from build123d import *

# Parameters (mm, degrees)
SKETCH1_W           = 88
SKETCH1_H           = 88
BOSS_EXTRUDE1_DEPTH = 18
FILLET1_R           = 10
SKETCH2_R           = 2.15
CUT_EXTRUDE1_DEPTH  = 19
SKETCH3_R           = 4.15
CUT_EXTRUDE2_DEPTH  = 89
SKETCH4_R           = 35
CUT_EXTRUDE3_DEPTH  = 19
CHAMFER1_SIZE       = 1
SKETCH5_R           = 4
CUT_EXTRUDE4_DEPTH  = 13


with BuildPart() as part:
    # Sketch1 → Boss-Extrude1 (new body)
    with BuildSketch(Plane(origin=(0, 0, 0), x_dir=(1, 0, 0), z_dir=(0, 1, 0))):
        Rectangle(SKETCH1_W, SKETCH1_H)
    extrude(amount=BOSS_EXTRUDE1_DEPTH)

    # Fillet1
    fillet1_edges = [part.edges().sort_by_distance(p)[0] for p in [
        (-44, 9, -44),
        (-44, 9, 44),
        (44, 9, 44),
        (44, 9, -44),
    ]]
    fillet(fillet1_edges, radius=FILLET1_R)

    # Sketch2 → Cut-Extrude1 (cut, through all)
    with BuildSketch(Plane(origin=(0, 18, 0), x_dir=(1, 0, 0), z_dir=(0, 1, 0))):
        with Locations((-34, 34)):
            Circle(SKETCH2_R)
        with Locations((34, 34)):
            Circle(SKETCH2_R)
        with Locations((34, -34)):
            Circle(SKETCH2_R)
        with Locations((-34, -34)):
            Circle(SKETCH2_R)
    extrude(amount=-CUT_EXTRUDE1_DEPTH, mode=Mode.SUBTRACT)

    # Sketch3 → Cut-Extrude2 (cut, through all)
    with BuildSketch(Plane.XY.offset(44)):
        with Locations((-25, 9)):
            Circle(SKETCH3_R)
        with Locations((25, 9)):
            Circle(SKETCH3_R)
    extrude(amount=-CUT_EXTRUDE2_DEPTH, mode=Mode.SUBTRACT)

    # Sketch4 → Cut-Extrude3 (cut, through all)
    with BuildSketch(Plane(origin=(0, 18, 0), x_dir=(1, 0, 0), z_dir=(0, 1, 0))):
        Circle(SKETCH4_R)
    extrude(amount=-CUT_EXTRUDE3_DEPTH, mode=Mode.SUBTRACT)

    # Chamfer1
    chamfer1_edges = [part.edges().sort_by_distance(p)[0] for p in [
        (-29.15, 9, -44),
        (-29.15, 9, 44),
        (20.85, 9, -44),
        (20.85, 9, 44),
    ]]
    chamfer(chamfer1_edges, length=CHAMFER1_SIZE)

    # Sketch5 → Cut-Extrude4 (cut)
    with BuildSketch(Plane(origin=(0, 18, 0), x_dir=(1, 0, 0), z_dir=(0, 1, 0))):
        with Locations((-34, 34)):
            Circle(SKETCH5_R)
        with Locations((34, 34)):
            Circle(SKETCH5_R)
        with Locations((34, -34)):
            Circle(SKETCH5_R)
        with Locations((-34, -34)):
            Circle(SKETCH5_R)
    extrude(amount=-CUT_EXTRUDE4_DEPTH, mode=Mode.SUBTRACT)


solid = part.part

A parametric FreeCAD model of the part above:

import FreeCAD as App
import Part
import Sketcher

V = App.Vector
Q = App.Units.Quantity


def edges_at(feature, points):
    """Names of the edges that pass closest to the given points."""
    edges = feature.Shape.Edges
    near = lambda p: min(range(len(edges)), key=lambda i: edges[i].distToShape(Part.Vertex(*p))[0])
    return sorted({f"Edge{near(p) + 1}" for p in points})

doc = App.newDocument("Part")
body = doc.addObject("PartDesign::Body", "Body")

# Sketch on XZ plane
sketch1 = doc.addObject("Sketcher::SketchObject", "Sketch")
body.addObject(sketch1)
sketch1.AttachmentSupport = (doc.XZ_Plane, [""])
sketch1.MapMode = "FlatFace"
sketch1.addGeometry([
    Part.LineSegment(V(-44, -44, 0), V(-44, 44, 0)),
    Part.LineSegment(V(-44, 44, 0), V(44, 44, 0)),
    Part.LineSegment(V(44, 44, 0), V(44, -44, 0)),
    Part.LineSegment(V(44, -44, 0), V(-44, -44, 0)),
], False)
sketch1.addConstraint([
    Sketcher.Constraint("Coincident", 0, 2, 1, 1),
    Sketcher.Constraint("Coincident", 1, 2, 2, 1),
    Sketcher.Constraint("Coincident", 2, 2, 3, 1),
    Sketcher.Constraint("Coincident", 3, 2, 0, 1),
    Sketcher.Constraint("Vertical", 0),
    Sketcher.Constraint("Horizontal", 1),
    Sketcher.Constraint("Vertical", 2),
    Sketcher.Constraint("Horizontal", 3),
    Sketcher.Constraint("Symmetric", 0, 2, 2, 2, -1, 1),
    Sketcher.Constraint("Equal", 3, 0),
    Sketcher.Constraint("DistanceX", 1, 1, 1, 2, Q("88 mm")),
])
pad1 = doc.addObject("PartDesign::Pad", "Pad")
body.addObject(pad1)
pad1.Profile = sketch1
pad1.Length = 18
pad1.Reversed = True
doc.recompute()

fillet = doc.addObject("PartDesign::Fillet", "Fillet")
body.addObject(fillet)
fillet.Base = (pad1, edges_at(pad1, [
    (-44, 9, -44),
    (-44, 9, 44),
    (44, 9, 44),
    (44, 9, -44),
]))
fillet.Radius = 10

# Sketch on XZ plane
sketch2 = doc.addObject("Sketcher::SketchObject", "Sketch001")
body.addObject(sketch2)
sketch2.AttachmentSupport = (doc.XZ_Plane, [""])
sketch2.MapMode = "FlatFace"
sketch2.AttachmentOffset = App.Placement(V(0, 0, -18), App.Rotation())
sketch2.addGeometry([
    Part.Circle(V(-34, -34, 0), V(0, 0, 1), 2.15),
    Part.Circle(V(34, -34, 0), V(0, 0, 1), 2.15),
    Part.Circle(V(34, 34, 0), V(0, 0, 1), 2.15),
    Part.Circle(V(-34, 34, 0), V(0, 0, 1), 2.15),
], False)
sketch2.addConstraint([
    Sketcher.Constraint("Equal", 0, 1),
    Sketcher.Constraint("Equal", 1, 2),
    Sketcher.Constraint("Equal", 2, 3),
    Sketcher.Constraint("Symmetric", 0, 3, 2, 3, -1, 1),
    Sketcher.Constraint("Symmetric", 1, 3, 3, 3, -1, 1),
    Sketcher.Constraint("Symmetric", 0, 3, 1, 3, -2),
    Sketcher.Constraint("Diameter", 0, Q("4.3 mm")),
    Sketcher.Constraint("DistanceX", 0, 3, -1, 1, Q("34 mm")),
    Sketcher.Constraint("DistanceY", 0, 3, -1, 1, Q("34 mm")),
])
pocket1 = doc.addObject("PartDesign::Pocket", "Pocket")
body.addObject(pocket1)
pocket1.Profile = sketch2
pocket1.Type = "ThroughAll"
pocket1.Reversed = True

# Sketch on XY plane
sketch3 = doc.addObject("Sketcher::SketchObject", "Sketch002")
body.addObject(sketch3)
sketch3.AttachmentSupport = (doc.XY_Plane, [""])
sketch3.MapMode = "FlatFace"
sketch3.AttachmentOffset = App.Placement(V(0, 0, 44), App.Rotation())
sketch3.addGeometry([
    Part.Circle(V(-25, 9, 0), V(0, 0, 1), 4.15),
    Part.Circle(V(25, 9, 0), V(0, 0, 1), 4.15),
], False)
sketch3.addConstraint([
    Sketcher.Constraint("Equal", 0, 1),
    Sketcher.Constraint("Symmetric", 0, 3, 1, 3, -2),
    Sketcher.Constraint("Diameter", 0, Q("8.3 mm")),
    Sketcher.Constraint("DistanceX", 0, 3, -1, 1, Q("25 mm")),
    Sketcher.Constraint("DistanceY", -1, 1, 0, 3, Q("9 mm")),
])
pocket2 = doc.addObject("PartDesign::Pocket", "Pocket001")
body.addObject(pocket2)
pocket2.Profile = sketch3
pocket2.Type = "ThroughAll"

# Sketch on XZ plane
sketch4 = doc.addObject("Sketcher::SketchObject", "Sketch003")
body.addObject(sketch4)
sketch4.AttachmentSupport = (doc.XZ_Plane, [""])
sketch4.MapMode = "FlatFace"
sketch4.AttachmentOffset = App.Placement(V(0, 0, -18), App.Rotation())
sketch4.addGeometry(Part.Circle(V(0, 0, 0), V(0, 0, 1), 35), False)
sketch4.addConstraint([
    Sketcher.Constraint("Coincident", 0, 3, -1, 1),
    Sketcher.Constraint("Diameter", 0, Q("70 mm")),
])
pocket3 = doc.addObject("PartDesign::Pocket", "Pocket002")
body.addObject(pocket3)
pocket3.Profile = sketch4
pocket3.Type = "ThroughAll"
pocket3.Reversed = True
doc.recompute()

chamfer = doc.addObject("PartDesign::Chamfer", "Chamfer")
body.addObject(chamfer)
chamfer.Base = (pocket3, edges_at(pocket3, [
    (-29.15, 9, -44),
    (-29.15, 9, 44),
    (20.85, 9, -44),
    (20.85, 9, 44),
]))
chamfer.Size = 1

# Sketch on XZ plane
sketch5 = doc.addObject("Sketcher::SketchObject", "Sketch004")
body.addObject(sketch5)
sketch5.AttachmentSupport = (doc.XZ_Plane, [""])
sketch5.MapMode = "FlatFace"
sketch5.AttachmentOffset = App.Placement(V(0, 0, -18), App.Rotation())
sketch5.addGeometry([
    Part.Circle(V(-34, -34, 0), V(0, 0, 1), 4),
    Part.Circle(V(34, -34, 0), V(0, 0, 1), 4),
    Part.Circle(V(34, 34, 0), V(0, 0, 1), 4),
    Part.Circle(V(-34, 34, 0), V(0, 0, 1), 4),
], False)
sketch5.addConstraint([
    Sketcher.Constraint("Equal", 0, 1),
    Sketcher.Constraint("Equal", 1, 2),
    Sketcher.Constraint("Equal", 2, 3),
    Sketcher.Constraint("Symmetric", 0, 3, 2, 3, -1, 1),
    Sketcher.Constraint("Symmetric", 1, 3, 3, 3, -1, 1),
    Sketcher.Constraint("Symmetric", 0, 3, 1, 3, -2),
    Sketcher.Constraint("Diameter", 0, Q("8 mm")),
    Sketcher.Constraint("DistanceX", 0, 3, -1, 1, Q("34 mm")),
    Sketcher.Constraint("DistanceY", 0, 3, -1, 1, Q("34 mm")),
])
pocket4 = doc.addObject("PartDesign::Pocket", "Pocket003")
body.addObject(pocket4)
pocket4.Profile = sketch5
pocket4.Length = 13
pocket4.Reversed = True

doc.recompute()
